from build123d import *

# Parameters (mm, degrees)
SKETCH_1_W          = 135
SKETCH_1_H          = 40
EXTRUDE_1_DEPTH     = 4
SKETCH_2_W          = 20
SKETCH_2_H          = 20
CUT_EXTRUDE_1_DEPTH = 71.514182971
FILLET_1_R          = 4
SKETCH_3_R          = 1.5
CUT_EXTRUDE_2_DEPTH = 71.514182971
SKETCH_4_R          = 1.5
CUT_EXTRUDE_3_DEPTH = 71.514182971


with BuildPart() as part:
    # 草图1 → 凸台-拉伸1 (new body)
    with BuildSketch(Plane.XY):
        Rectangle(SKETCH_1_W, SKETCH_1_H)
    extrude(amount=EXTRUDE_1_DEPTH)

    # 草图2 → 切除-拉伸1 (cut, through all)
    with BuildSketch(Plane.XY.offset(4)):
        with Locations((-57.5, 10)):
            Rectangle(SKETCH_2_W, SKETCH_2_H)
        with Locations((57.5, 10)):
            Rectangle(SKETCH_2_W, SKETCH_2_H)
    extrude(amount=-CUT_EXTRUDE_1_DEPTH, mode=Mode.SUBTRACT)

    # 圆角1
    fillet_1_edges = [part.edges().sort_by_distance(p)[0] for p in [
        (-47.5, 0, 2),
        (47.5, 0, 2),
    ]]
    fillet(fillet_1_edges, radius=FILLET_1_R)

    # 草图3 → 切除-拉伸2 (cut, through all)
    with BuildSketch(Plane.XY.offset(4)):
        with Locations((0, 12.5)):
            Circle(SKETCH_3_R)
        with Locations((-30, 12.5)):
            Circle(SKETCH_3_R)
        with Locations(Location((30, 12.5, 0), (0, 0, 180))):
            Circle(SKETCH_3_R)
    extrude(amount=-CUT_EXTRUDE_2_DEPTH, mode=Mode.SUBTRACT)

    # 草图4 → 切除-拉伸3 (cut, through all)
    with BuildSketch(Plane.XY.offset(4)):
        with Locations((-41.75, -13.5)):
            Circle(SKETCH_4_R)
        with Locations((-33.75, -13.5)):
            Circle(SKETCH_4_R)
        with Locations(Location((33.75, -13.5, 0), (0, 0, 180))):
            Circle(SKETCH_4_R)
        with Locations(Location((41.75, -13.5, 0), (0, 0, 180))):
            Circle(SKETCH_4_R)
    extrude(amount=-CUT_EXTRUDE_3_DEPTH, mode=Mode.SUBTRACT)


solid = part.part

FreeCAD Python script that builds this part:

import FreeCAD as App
import Part
import Sketcher
from FreeCAD import Vector
Q = App.Units.Quantity


def edges_at(feature, points):
    """Names of the edges that pass closest to the given points."""
    edges = feature.Shape.Edges
    near = lambda p: min(range(len(edges)), key=lambda i: edges[i].distToShape(Part.Vertex(*p))[0])
    return sorted({f"Edge{near(p) + 1}" for p in points})


def add_polygon(sketch, points):
    """Adds a closed chain of lines whose ends are joined by coincident constraints."""
    first, n = sketch.GeometryCount, len(points)
    for a, b in zip(points, points[1:] + points[:1]):
        sketch.addGeometry(Part.LineSegment(App.Vector(*a, 0), App.Vector(*b, 0)), False)
    for i in range(n):
        sketch.addConstraint(Sketcher.Constraint("Coincident", first + i, 2, first + (i + 1) % n, 1))

doc = App.newDocument("Part")
body = doc.addObject("PartDesign::Body", "Body")

# Sketch on XY plane
sketch1 = body.newObject("Sketcher::SketchObject", "Sketch")
sketch1.AttachmentSupport = (doc.getObject("XY_Plane"), [""])
sketch1.MapMode = "FlatFace"
add_polygon(sketch1, [(-68, 20), (-68, -20), (68, -20), (68, 20)])  # lines 0-3
sketch1.addConstraint([
    Sketcher.Constraint("Vertical", 0),
    Sketcher.Constraint("Horizontal", 1),
    Sketcher.Constraint("Vertical", 2),
    Sketcher.Constraint("Horizontal", 3),
    Sketcher.Constraint("Symmetric", 0, 2, 2, 2, -1, 1),
    Sketcher.Constraint("DistanceX", 1, 1, 1, 2, Q("135 mm")),
    Sketcher.Constraint("DistanceY", 0, 2, 0, 1, Q("40 mm")),
])
pad1 = body.newObject("PartDesign::Pad", "Pad")
pad1.Profile = sketch1
pad1.Length = 4

# Sketch on XY plane
sketch2 = body.newObject("Sketcher::SketchObject", "Sketch001")
sketch2.AttachmentSupport = (doc.getObject("XY_Plane"), [""])
sketch2.MapMode = "FlatFace"
sketch2.AttachmentOffset = App.Placement(Vector(0, 0, 4), App.Rotation())
add_polygon(sketch2, [(-68, 20), (-68, 0), (-48, 0), (-48, 20)])  # lines 0-3
add_polygon(sketch2, [(48, 20), (48, 0), (68, 0), (68, 20)])  # lines 4-7
sketch2.addConstraint([
    Sketcher.Constraint("Vertical", 0),
    Sketcher.Constraint("Horizontal", 1),
    Sketcher.Constraint("Vertical", 2),
    Sketcher.Constraint("Horizontal", 3),
    Sketcher.Constraint("Vertical", 4),
    Sketcher.Constraint("Horizontal", 5),
    Sketcher.Constraint("Vertical", 6),
    Sketcher.Constraint("Horizontal", 7),
    Sketcher.Constraint("Symmetric", 1, 2, 4, 2, -1, 1),
    Sketcher.Constraint("Symmetric", 0, 2, 5, 2, -2),
    Sketcher.Constraint("Horizontal", 3, 2, 6, 2),
    Sketcher.Constraint("Equal", 7, 0),
    Sketcher.Constraint("DistanceX", 1, 1, 1, 2, Q("20 mm")),
    Sketcher.Constraint("DistanceX", 1, 2, 4, 2, Q("95 mm")),
])
pocket1 = body.newObject("PartDesign::Pocket", "Pocket")
pocket1.Profile = sketch2
pocket1.Type = "ThroughAll"
doc.recompute()

fillet = body.newObject("PartDesign::Fillet", "Fillet")
fillet.Base = (pocket1, edges_at(pocket1, [(-47.5, 0, 2), (47.5, 0, 2)]))
fillet.Radius = 4

# Sketch on XY plane
sketch3 = body.newObject("Sketcher::SketchObject", "Sketch002")
sketch3.AttachmentSupport = (doc.getObject("XY_Plane"), [""])
sketch3.MapMode = "FlatFace"
sketch3.AttachmentOffset = App.Placement(Vector(0, 0, 4), App.Rotation())
sketch3.addGeometry([
    Part.Circle(Vector(0, 12.5, 0), Vector(0, 0, 1), 1.5),
    Part.Circle(Vector(-30, 12.5, 0), Vector(0, 0, 1), 1.5),
    Part.Circle(Vector(30, 12.5, 0), Vector(0, 0, 1), 1.5),
], False)
sketch3.addConstraint([
    Sketcher.Constraint("Equal", 0, 1),
    Sketcher.Constraint("Equal", 1, 2),
    Sketcher.Constraint("Symmetric", 1, 3, 2, 3, -2),
    Sketcher.Constraint("PointOnObject", 0, 3, -2),
    Sketcher.Constraint("Horizontal", 0, 3, 1, 3),
    Sketcher.Constraint("Diameter", 0, Q("3 mm")),
    Sketcher.Constraint("DistanceX", 1, 3, -1, 1, Q("30 mm")),
    Sketcher.Constraint("DistanceY", -1, 1, 0, 3, Q("12.5 mm")),
])
pocket2 = body.newObject("PartDesign::Pocket", "Pocket001")
pocket2.Profile = sketch3
pocket2.Type = "ThroughAll"

# Sketch on XY plane
sketch4 = body.newObject("Sketcher::SketchObject", "Sketch003")
sketch4.AttachmentSupport = (doc.getObject("XY_Plane"), [""])
sketch4.MapMode = "FlatFace"
sketch4.AttachmentOffset = App.Placement(Vector(0, 0, 4), App.Rotation())
sketch4.addGeometry([
    Part.Circle(Vector(-41.8, -13.5, 0), Vector(0, 0, 1), 1.5),
    Part.Circle(Vector(-33.8, -13.5, 0), Vector(0, 0, 1), 1.5),
    Part.Circle(Vector(33.8, -13.5, 0), Vector(0, 0, 1), 1.5),
    Part.Circle(Vector(41.8, -13.5, 0), Vector(0, 0, 1), 1.5),
], False)
sketch4.addConstraint([
    Sketcher.Constraint("Equal", 0, 1),
    Sketcher.Constraint("Equal", 1, 2),
    Sketcher.Constraint("Equal", 2, 3),
    Sketcher.Constraint("Symmetric", 1, 3, 2, 3, -2),
    Sketcher.Constraint("Symmetric", 0, 3, 3, 3, -2),
    Sketcher.Constraint("Horizontal", 0, 3, 1, 3),
    Sketcher.Constraint("Diameter", 0, Q("3 mm")),
    Sketcher.Constraint("DistanceX", 0, 3, 1, 3, Q("8 mm")),
    Sketcher.Constraint("DistanceY", 0, 3, -1, 1, Q("13.5 mm")),
    Sketcher.Constraint("DistanceX", 1, 3, 2, 3, Q("67.5 mm")),
])
pocket3 = body.newObject("PartDesign::Pocket", "Pocket002")
pocket3.Profile = sketch4
pocket3.Type = "ThroughAll"

doc.recompute()
